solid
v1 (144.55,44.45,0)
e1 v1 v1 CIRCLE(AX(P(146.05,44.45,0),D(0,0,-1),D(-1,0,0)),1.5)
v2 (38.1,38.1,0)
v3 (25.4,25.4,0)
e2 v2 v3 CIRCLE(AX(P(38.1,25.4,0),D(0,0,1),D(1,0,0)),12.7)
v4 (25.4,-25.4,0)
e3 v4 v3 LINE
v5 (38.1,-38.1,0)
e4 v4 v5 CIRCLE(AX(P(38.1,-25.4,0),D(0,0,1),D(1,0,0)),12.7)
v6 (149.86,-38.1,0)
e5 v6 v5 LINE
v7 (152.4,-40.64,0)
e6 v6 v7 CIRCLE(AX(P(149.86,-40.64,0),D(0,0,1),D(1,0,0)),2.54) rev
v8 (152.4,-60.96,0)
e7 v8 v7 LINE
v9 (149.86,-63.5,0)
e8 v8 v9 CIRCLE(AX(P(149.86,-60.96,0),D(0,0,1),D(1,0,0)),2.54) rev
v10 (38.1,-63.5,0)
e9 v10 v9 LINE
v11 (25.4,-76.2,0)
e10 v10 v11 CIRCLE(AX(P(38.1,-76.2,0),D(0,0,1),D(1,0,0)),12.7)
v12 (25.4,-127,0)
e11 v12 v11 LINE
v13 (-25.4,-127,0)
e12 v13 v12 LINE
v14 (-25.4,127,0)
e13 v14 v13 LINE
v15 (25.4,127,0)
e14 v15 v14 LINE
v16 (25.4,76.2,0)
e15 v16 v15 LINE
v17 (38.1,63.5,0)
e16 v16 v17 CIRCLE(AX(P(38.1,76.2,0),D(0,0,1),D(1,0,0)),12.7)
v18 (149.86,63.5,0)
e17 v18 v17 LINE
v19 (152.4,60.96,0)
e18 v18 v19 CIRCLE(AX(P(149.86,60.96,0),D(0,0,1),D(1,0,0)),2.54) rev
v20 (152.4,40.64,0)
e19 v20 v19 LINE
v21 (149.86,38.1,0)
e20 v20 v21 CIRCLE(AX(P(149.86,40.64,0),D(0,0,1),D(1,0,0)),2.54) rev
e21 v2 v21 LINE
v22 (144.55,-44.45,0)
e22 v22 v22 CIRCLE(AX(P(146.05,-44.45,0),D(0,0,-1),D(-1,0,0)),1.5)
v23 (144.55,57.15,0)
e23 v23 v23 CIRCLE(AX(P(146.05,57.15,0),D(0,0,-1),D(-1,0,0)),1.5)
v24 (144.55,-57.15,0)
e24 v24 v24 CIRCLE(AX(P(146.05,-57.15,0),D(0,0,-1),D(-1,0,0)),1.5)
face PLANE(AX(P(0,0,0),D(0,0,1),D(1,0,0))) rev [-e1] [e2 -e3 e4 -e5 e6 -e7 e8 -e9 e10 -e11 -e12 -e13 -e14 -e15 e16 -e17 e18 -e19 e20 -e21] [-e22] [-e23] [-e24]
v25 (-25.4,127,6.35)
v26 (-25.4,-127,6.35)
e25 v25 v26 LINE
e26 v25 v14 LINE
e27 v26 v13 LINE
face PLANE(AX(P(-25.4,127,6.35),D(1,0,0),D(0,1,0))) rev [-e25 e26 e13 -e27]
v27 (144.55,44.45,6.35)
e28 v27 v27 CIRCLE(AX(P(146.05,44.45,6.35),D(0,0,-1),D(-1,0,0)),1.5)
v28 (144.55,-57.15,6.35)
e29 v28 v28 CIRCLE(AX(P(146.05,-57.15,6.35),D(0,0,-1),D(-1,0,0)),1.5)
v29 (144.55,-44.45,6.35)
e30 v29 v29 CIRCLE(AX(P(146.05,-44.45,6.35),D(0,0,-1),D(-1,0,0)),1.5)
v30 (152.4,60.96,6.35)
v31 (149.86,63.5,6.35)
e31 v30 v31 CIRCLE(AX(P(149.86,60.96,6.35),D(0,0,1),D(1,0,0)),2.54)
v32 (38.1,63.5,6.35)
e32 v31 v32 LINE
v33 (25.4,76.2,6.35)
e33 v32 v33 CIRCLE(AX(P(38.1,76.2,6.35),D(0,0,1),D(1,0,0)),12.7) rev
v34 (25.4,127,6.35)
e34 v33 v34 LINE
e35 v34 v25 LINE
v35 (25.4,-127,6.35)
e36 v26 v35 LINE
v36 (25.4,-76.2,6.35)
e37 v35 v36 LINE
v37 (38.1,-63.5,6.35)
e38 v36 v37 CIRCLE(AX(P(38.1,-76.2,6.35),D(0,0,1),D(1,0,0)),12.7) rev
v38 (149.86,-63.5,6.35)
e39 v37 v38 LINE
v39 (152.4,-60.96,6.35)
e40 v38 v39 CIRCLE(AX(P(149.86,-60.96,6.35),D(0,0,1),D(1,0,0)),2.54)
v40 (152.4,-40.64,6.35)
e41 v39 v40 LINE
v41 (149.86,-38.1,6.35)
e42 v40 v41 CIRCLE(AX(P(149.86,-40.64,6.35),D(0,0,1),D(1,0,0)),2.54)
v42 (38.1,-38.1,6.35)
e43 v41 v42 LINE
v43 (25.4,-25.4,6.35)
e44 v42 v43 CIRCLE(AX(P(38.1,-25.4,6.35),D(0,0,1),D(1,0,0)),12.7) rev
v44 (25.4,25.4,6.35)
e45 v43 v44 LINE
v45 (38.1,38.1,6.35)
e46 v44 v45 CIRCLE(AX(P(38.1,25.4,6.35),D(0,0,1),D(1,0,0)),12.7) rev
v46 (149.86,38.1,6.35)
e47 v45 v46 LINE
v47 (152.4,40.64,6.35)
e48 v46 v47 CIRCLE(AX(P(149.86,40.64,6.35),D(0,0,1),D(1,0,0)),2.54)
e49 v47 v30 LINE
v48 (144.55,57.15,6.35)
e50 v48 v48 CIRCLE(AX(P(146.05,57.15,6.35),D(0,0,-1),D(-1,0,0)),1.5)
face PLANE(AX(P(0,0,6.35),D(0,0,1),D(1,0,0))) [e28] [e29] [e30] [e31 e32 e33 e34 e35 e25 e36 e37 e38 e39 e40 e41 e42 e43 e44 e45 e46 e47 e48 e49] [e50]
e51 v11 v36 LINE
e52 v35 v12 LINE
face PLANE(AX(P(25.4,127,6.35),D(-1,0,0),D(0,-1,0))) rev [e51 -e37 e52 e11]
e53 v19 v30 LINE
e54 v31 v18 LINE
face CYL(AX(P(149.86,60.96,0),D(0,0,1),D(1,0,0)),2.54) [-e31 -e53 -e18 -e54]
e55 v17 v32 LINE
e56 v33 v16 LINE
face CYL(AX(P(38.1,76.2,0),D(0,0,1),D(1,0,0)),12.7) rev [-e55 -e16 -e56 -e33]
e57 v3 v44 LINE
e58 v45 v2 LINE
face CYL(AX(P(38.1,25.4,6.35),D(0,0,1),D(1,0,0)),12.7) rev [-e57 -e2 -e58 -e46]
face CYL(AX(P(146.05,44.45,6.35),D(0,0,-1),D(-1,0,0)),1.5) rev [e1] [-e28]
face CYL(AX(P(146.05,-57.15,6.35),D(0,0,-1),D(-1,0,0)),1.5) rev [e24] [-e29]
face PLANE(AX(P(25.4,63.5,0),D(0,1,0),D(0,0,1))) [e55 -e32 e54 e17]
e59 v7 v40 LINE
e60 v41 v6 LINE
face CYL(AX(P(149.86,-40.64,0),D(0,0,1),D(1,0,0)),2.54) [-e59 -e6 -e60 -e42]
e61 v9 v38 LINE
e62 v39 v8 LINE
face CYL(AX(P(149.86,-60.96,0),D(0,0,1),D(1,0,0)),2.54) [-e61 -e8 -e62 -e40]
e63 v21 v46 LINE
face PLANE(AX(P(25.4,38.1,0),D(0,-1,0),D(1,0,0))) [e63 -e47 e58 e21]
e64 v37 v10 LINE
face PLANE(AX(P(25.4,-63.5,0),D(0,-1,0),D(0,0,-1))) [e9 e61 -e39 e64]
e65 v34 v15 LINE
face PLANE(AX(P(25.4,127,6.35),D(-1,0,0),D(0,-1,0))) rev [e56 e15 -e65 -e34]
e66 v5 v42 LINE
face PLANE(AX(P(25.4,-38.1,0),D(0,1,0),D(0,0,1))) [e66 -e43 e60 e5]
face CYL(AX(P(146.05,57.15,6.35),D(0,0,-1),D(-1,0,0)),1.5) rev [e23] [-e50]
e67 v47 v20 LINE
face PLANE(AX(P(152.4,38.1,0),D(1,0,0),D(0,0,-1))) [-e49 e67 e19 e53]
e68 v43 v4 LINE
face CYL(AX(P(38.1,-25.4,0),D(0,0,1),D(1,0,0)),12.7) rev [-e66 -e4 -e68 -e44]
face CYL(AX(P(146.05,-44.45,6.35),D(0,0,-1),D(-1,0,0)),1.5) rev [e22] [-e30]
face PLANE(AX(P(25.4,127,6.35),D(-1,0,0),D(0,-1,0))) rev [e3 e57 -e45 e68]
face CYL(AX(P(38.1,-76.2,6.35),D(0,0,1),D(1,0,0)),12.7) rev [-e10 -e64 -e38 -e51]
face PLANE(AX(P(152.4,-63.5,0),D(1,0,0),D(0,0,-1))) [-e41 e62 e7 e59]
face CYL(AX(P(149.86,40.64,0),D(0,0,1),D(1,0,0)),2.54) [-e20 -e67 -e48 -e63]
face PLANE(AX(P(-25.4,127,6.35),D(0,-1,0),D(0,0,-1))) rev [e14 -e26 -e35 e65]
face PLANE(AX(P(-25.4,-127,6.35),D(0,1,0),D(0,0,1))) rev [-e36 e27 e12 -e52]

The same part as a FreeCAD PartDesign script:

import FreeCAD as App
import Part
import Sketcher
Q = App.Units.Quantity


def edges_at(feature, points):
    """Names of the edges that pass closest to the given points."""
    edges = feature.Shape.Edges
    near = lambda p: min(range(len(edges)), key=lambda i: edges[i].distToShape(Part.Vertex(*p))[0])
    return sorted({f"Edge{near(p) + 1}" for p in points})

doc = App.newDocument("Part")
body = doc.addObject("PartDesign::Body", "Body")

# Sketch on XY plane
sketch1 = body.newObject("Sketcher::SketchObject", "Sketch")
sketch1.AttachmentSupport = (doc.getObject("XY_Plane"), [""])
sketch1.MapMode = "FlatFace"
sketch1.addGeometry([
    Part.LineSegment(App.Vector(-25.4, 127, 0), App.Vector(-25.4, -127, 0)),
    Part.LineSegment(App.Vector(-25.4, -127, 0), App.Vector(25.4, -127, 0)),
    Part.LineSegment(App.Vector(25.4, -127, 0), App.Vector(25.4, 127, 0)),
    Part.LineSegment(App.Vector(25.4, 127, 0), App.Vector(-25.4, 127, 0)),
], False)
sketch1.addConstraint([
    Sketcher.Constraint("Coincident", 0, 2, 1, 1),
    Sketcher.Constraint("Coincident", 1, 2, 2, 1),
    Sketcher.Constraint("Coincident", 2, 2, 3, 1),
    Sketcher.Constraint("Coincident", 3, 2, 0, 1),
    Sketcher.Constraint("Vertical", 0),
    Sketcher.Constraint("Horizontal", 1),
    Sketcher.Constraint("Vertical", 2),
    Sketcher.Constraint("Horizontal", 3),
    Sketcher.Constraint("Symmetric", 0, 2, 2, 2, -1, 1),
    Sketcher.Constraint("DistanceX", 1, 1, 1, 2, Q("2 in")),
    Sketcher.Constraint("DistanceY", 0, 2, 0, 1, Q("10 in")),
])
pad1 = body.newObject("PartDesign::Pad", "Pad")
pad1.Profile = sketch1
pad1.Length = Q("0.25 in")

# Sketch on XY plane
sketch2 = body.newObject("Sketcher::SketchObject", "Sketch001")
sketch2.AttachmentSupport = (doc.getObject("XY_Plane"), [""])
sketch2.MapMode = "FlatFace"
sketch2.AttachmentOffset = App.Placement(App.Vector(0, 0, 0.25 * 25.4), App.Rotation())
sketch2.addGeometry([
    Part.LineSegment(App.Vector(25.4, -38.1, 0), App.Vector(25.4, -63.5, 0)),  # 0
    Part.LineSegment(App.Vector(25.4, -63.5, 0), App.Vector(152.4, -63.5, 0)),  # 1
    Part.LineSegment(App.Vector(152.4, -63.5, 0), App.Vector(152.4, -38.1, 0)),  # 2
    Part.LineSegment(App.Vector(152.4, -38.1, 0), App.Vector(25.4, -38.1, 0)),  # 3
    Part.LineSegment(App.Vector(25.4, 63.5, 0), App.Vector(25.4, 38.1, 0)),  # 4
    Part.LineSegment(App.Vector(25.4, 38.1, 0), App.Vector(152.4, 38.1, 0)),  # 5
    Part.LineSegment(App.Vector(152.4, 38.1, 0), App.Vector(152.4, 63.5, 0)),  # 6
    Part.LineSegment(App.Vector(152.4, 63.5, 0), App.Vector(25.4, 63.5, 0)),  # 7
], False)
sketch2.addConstraint([
    Sketcher.Constraint("Coincident", 0, 2, 1, 1),
    Sketcher.Constraint("Coincident", 1, 2, 2, 1),
    Sketcher.Constraint("Coincident", 2, 2, 3, 1),
    Sketcher.Constraint("Coincident", 3, 2, 0, 1),
    Sketcher.Constraint("Coincident", 4, 2, 5, 1),
    Sketcher.Constraint("Coincident", 5, 2, 6, 1),
    Sketcher.Constraint("Coincident", 6, 2, 7, 1),
    Sketcher.Constraint("Coincident", 7, 2, 4, 1),
    Sketcher.Constraint("Vertical", 0),
    Sketcher.Constraint("Horizontal", 1),
    Sketcher.Constraint("Vertical", 2),
    Sketcher.Constraint("Horizontal", 3),
    Sketcher.Constraint("Vertical", 4),
    Sketcher.Constraint("Horizontal", 5),
    Sketcher.Constraint("Vertical", 6),
    Sketcher.Constraint("Horizontal", 7),
    Sketcher.Constraint("Symmetric", 3, 2, 4, 2, -1),
    Sketcher.Constraint("Symmetric", 1, 2, 6, 2, -1),
    Sketcher.Constraint("DistanceX", 1, 1, 1, 2, Q("5 in")),
    Sketcher.Constraint("DistanceY", 0, 2, 0, 1, Q("1 in")),
    Sketcher.Constraint("DistanceX", -1, 1, 0, 2, Q("1 in")),
    Sketcher.Constraint("DistanceY", 3, 2, 4, 2, Q("3 in")),
])
pad2 = body.newObject("PartDesign::Pad", "Pad001")
pad2.Profile = sketch2
pad2.Length = Q("0.25 in")
pad2.Reversed = True
doc.recompute()

fillet = body.newObject("PartDesign::Fillet", "Fillet")
fillet.Base = (pad2, edges_at(pad2, [
    (25.4, -63.5, 3.175),
    (25.4, -38.1, 3.175),
    (25.4, 38.1, 3.175),
    (25.4, 63.5, 3.175),
]))
fillet.Radius = Q("0.5 in")
doc.recompute()

fillet2 = body.newObject("PartDesign::Fillet", "Fillet001")
fillet2.Base = (fillet, edges_at(fillet, [
    (152.4, -38.1, 3.175),
    (152.4, -63.5, 3.175),
    (152.4, 63.5, 3.175),
    (152.4, 38.1, 3.175),
]))
fillet2.Radius = Q("0.1 in")

# Sketch on XY plane
sketch3 = body.newObject("Sketcher::SketchObject", "Sketch002")
sketch3.AttachmentSupport = (doc.getObject("XY_Plane"), [""])
sketch3.MapMode = "FlatFace"
sketch3.addGeometry([
    Part.Circle(App.Vector(146.05, 57.15, 0), App.Vector(0, 0, 1), 1.5),
    Part.Circle(App.Vector(146.05, 44.45, 0), App.Vector(0, 0, 1), 1.5),
    Part.Circle(App.Vector(146.05, -44.45, 0), App.Vector(0, 0, 1), 1.5),
    Part.Circle(App.Vector(146.05, -57.15, 0), App.Vector(0, 0, 1), 1.5),
], False)
sketch3.addConstraint([
    Sketcher.Constraint("Equal", 0, 1),
    Sketcher.Constraint("Equal", 1, 2),
    Sketcher.Constraint("Equal", 2, 3),
    Sketcher.Constraint("Symmetric", 1, 3, 2, 3, -1),
    Sketcher.Constraint("Symmetric", 0, 3, 3, 3, -1),
    Sketcher.Constraint("Vertical", 0, 3, 1, 3),
    Sketcher.Constraint("DistanceY", 2, 3, 0, 3, Q("4 in")),
    Sketcher.Constraint("DistanceY", 1, 3, 0, 3, Q("0.5 in")),
    Sketcher.Constraint("Diameter", 0, 3.0),
    Sketcher.Constraint("DistanceX", -1, 1, 0, 3, Q("5.75 in")),
])
pocket1 = body.newObject("PartDesign::Pocket", "Pocket")
pocket1.Profile = sketch3
pocket1.Type = "ThroughAll"
pocket1.Reversed = True

doc.recompute()
